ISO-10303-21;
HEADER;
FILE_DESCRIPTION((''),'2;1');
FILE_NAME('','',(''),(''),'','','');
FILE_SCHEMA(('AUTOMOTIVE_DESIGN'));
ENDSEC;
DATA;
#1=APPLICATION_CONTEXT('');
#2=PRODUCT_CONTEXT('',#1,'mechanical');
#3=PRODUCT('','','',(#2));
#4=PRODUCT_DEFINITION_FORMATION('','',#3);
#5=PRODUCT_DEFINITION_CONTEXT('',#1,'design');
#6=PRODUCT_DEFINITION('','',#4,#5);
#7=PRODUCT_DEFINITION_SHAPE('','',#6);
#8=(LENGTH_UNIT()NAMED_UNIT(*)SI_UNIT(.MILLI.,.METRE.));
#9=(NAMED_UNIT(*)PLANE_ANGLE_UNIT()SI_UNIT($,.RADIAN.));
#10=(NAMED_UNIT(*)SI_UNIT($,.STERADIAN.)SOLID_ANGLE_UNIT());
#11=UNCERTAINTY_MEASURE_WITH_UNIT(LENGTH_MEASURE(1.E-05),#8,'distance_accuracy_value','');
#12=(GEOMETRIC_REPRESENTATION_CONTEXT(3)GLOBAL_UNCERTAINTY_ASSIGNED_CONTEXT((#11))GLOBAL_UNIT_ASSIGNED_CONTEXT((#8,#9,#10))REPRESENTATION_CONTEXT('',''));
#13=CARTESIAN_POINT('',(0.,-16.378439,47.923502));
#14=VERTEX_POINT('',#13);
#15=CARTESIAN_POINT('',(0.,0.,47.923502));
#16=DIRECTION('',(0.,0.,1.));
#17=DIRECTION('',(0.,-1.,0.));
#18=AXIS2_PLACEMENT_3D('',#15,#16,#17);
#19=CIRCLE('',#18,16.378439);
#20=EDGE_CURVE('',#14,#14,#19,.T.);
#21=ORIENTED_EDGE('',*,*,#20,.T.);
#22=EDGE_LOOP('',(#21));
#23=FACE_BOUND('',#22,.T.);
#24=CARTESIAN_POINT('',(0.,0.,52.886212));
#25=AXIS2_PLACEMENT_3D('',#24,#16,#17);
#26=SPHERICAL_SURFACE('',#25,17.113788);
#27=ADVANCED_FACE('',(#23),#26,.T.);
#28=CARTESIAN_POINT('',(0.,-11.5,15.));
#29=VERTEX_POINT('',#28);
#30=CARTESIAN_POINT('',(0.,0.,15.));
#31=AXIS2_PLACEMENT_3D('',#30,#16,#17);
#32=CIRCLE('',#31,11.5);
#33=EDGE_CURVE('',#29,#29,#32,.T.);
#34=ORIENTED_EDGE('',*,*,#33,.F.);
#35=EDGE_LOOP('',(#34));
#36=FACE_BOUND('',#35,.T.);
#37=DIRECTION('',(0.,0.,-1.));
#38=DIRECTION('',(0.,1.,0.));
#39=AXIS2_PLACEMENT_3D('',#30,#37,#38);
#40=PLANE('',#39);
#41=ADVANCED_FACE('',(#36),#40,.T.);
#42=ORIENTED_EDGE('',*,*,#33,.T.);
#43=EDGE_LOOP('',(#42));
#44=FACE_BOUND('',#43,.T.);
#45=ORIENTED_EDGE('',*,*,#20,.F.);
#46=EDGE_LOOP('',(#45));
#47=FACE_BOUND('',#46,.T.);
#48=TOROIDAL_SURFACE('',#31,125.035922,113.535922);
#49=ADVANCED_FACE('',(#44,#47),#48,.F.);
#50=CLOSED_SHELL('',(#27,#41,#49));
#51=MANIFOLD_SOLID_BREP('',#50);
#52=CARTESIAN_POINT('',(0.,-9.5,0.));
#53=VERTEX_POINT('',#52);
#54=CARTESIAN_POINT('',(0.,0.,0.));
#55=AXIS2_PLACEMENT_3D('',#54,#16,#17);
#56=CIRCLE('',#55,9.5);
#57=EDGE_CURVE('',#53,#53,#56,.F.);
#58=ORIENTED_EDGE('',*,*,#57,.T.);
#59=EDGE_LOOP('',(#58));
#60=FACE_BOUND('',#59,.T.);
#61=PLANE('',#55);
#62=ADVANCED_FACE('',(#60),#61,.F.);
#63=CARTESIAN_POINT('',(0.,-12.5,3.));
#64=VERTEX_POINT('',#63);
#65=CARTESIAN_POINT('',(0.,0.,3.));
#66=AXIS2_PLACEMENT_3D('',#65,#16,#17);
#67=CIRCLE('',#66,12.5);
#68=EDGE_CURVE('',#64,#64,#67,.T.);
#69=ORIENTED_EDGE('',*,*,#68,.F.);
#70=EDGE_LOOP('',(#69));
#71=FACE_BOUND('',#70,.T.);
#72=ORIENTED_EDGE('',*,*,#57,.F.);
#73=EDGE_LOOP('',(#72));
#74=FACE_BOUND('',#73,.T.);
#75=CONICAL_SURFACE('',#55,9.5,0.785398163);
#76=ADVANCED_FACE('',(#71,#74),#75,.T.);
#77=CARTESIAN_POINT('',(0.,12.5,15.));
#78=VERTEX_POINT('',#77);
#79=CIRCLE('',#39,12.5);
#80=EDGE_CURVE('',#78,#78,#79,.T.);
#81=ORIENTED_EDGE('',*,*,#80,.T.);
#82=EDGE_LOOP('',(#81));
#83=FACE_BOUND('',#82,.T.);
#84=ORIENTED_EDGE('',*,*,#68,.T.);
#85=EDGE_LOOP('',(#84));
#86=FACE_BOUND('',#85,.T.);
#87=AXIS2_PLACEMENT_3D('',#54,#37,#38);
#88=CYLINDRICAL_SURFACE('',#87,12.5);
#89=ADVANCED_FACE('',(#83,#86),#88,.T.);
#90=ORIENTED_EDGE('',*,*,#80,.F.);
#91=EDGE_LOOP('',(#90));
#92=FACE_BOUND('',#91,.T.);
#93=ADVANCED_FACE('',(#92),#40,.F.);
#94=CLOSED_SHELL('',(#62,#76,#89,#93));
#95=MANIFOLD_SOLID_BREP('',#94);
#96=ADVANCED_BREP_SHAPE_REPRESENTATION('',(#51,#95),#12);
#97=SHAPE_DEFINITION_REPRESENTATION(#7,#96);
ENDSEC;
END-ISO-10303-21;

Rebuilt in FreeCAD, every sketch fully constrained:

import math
import FreeCAD as App
import Part
import Sketcher

V = App.Vector


def edges_at(feature, points):
    """Names of the edges that pass closest to the given points."""
    edges = feature.Shape.Edges
    near = lambda p: min(range(len(edges)), key=lambda i: edges[i].distToShape(Part.Vertex(*p))[0])
    return sorted({f"Edge{near(p) + 1}" for p in points})


def add_polygon(sketch, points):
    """Adds a closed chain of lines whose ends are joined by coincident constraints."""
    first, n = sketch.GeometryCount, len(points)
    for a, b in zip(points, points[1:] + points[:1]):
        sketch.addGeometry(Part.LineSegment(App.Vector(*a, 0), App.Vector(*b, 0)), False)
    for i in range(n):
        sketch.addConstraint(Sketcher.Constraint("Coincident", first + i, 2, first + (i + 1) % n, 1))

doc = App.newDocument("Part")
params = doc.addObject("Spreadsheet::Sheet", "Params")
for row, (alias, value) in enumerate([
    ("sketch1_height", "15 mm"),
    ("sketch1_width", "12.5 mm"),
    ("revolution_angle", "360 deg"),
    ("chamfer_size", "3 mm"),
    ("sketch2_height", "55 mm"),
    ("sketch2_width", "11.5 mm"),
    ("revolution2_angle", "360 deg"),
], start=1):
    params.set(f"A{row}", alias)
    params.set(f"B{row}", "=" + value)
    params.setAlias(f"B{row}", alias)

body = doc.addObject("PartDesign::Body", "Body")

sketch1 = body.newObject("Sketcher::SketchObject", "Sketch")
sketch1.AttachmentSupport = (doc.getObject("YZ_Plane"), [""])
sketch1.MapMode = "FlatFace"
add_polygon(sketch1, [(0, 15), (-12.5, 15), (-12.5, 0), (0, 0)])
sketch1.addConstraint([
    Sketcher.Constraint("Horizontal", 0),
    Sketcher.Constraint("Vertical", 1),
    Sketcher.Constraint("Horizontal", 2),
    Sketcher.Constraint("Vertical", 3),
    Sketcher.Constraint("Coincident", 2, 2, -1, 1),
    Sketcher.Constraint("DistanceY", 1, 2, 1, 1, 15.0),
    Sketcher.Constraint("DistanceX", 0, 2, 0, 1, 12.5),
])
sketch1.setExpression("Constraints[9]", "Params.sketch1_height")
sketch1.setExpression("Constraints[10]", "Params.sketch1_width")
revolution = body.newObject("PartDesign::Revolution", "Revolution")
revolution.Profile = sketch1
revolution.ReferenceAxis = (sketch1, ["V_Axis"])
revolution.setExpression("Angle", "Params.revolution_angle")
doc.recompute()

chamfer = body.newObject("PartDesign::Chamfer", "Chamfer")
chamfer.Base = (revolution, edges_at(revolution, [(0, -12.5, 0)]))
chamfer.setExpression("Size", "Params.chamfer_size")
body2 = doc.addObject("PartDesign::Body", "Body001")

sketch2 = body2.newObject("Sketcher::SketchObject", "Sketch001")
sketch2.AttachmentSupport = (doc.getObject("YZ_Plane001"), [""])
sketch2.MapMode = "FlatFace"
sketch2.addGeometry([
    Part.LineSegment(V(-11.5, 15, 0), V(0, 15, 0)),
    Part.LineSegment(V(0, 15, 0), V(0, 70, 0)),
    Part.ArcOfCircle(Part.Circle(V(0, 52.886212, 0), V(0, 0, 1), 17.113788), math.radians(90), math.radians(196.856946)),
    Part.ArcOfCircle(Part.Circle(V(-125.035922, 15, 0), V(0, 0, 1), 113.535922), math.radians(0), math.radians(16.856946)),
], False)
sketch2.addConstraint([
    Sketcher.Constraint("Coincident", 0, 2, 1, 1),
    Sketcher.Constraint("Coincident", 1, 2, 2, 1),
    Sketcher.Constraint("Tangent", 2, 2, 3, 2),
    Sketcher.Constraint("Coincident", 3, 1, 0, 1),
    Sketcher.Constraint("Horizontal", 0),
    Sketcher.Constraint("Vertical", 1),
    Sketcher.Constraint("PointOnObject", 2, 3, -2),
    Sketcher.Constraint("PointOnObject", 0, 2, -2),
    Sketcher.Constraint("Horizontal", 3, 3, 0, 2),
    Sketcher.Constraint("DistanceY", 1, 1, 1, 2, 55.0),
    Sketcher.Constraint("DistanceX", 0, 1, 0, 2, 11.5),
    Sketcher.Constraint("DistanceY", -1, 1, 3, 3, 15.0),
    Sketcher.Constraint("Radius", 2, 17.113788),
])
sketch2.setExpression("Constraints[9]", "Params.sketch2_height")
sketch2.setExpression("Constraints[10]", "Params.sketch2_width")
revolution2 = body2.newObject("PartDesign::Revolution", "Revolution001")
revolution2.Profile = sketch2
revolution2.ReferenceAxis = (sketch2, ["V_Axis"])
revolution2.setExpression("Angle", "Params.revolution2_angle")

doc.recompute()
